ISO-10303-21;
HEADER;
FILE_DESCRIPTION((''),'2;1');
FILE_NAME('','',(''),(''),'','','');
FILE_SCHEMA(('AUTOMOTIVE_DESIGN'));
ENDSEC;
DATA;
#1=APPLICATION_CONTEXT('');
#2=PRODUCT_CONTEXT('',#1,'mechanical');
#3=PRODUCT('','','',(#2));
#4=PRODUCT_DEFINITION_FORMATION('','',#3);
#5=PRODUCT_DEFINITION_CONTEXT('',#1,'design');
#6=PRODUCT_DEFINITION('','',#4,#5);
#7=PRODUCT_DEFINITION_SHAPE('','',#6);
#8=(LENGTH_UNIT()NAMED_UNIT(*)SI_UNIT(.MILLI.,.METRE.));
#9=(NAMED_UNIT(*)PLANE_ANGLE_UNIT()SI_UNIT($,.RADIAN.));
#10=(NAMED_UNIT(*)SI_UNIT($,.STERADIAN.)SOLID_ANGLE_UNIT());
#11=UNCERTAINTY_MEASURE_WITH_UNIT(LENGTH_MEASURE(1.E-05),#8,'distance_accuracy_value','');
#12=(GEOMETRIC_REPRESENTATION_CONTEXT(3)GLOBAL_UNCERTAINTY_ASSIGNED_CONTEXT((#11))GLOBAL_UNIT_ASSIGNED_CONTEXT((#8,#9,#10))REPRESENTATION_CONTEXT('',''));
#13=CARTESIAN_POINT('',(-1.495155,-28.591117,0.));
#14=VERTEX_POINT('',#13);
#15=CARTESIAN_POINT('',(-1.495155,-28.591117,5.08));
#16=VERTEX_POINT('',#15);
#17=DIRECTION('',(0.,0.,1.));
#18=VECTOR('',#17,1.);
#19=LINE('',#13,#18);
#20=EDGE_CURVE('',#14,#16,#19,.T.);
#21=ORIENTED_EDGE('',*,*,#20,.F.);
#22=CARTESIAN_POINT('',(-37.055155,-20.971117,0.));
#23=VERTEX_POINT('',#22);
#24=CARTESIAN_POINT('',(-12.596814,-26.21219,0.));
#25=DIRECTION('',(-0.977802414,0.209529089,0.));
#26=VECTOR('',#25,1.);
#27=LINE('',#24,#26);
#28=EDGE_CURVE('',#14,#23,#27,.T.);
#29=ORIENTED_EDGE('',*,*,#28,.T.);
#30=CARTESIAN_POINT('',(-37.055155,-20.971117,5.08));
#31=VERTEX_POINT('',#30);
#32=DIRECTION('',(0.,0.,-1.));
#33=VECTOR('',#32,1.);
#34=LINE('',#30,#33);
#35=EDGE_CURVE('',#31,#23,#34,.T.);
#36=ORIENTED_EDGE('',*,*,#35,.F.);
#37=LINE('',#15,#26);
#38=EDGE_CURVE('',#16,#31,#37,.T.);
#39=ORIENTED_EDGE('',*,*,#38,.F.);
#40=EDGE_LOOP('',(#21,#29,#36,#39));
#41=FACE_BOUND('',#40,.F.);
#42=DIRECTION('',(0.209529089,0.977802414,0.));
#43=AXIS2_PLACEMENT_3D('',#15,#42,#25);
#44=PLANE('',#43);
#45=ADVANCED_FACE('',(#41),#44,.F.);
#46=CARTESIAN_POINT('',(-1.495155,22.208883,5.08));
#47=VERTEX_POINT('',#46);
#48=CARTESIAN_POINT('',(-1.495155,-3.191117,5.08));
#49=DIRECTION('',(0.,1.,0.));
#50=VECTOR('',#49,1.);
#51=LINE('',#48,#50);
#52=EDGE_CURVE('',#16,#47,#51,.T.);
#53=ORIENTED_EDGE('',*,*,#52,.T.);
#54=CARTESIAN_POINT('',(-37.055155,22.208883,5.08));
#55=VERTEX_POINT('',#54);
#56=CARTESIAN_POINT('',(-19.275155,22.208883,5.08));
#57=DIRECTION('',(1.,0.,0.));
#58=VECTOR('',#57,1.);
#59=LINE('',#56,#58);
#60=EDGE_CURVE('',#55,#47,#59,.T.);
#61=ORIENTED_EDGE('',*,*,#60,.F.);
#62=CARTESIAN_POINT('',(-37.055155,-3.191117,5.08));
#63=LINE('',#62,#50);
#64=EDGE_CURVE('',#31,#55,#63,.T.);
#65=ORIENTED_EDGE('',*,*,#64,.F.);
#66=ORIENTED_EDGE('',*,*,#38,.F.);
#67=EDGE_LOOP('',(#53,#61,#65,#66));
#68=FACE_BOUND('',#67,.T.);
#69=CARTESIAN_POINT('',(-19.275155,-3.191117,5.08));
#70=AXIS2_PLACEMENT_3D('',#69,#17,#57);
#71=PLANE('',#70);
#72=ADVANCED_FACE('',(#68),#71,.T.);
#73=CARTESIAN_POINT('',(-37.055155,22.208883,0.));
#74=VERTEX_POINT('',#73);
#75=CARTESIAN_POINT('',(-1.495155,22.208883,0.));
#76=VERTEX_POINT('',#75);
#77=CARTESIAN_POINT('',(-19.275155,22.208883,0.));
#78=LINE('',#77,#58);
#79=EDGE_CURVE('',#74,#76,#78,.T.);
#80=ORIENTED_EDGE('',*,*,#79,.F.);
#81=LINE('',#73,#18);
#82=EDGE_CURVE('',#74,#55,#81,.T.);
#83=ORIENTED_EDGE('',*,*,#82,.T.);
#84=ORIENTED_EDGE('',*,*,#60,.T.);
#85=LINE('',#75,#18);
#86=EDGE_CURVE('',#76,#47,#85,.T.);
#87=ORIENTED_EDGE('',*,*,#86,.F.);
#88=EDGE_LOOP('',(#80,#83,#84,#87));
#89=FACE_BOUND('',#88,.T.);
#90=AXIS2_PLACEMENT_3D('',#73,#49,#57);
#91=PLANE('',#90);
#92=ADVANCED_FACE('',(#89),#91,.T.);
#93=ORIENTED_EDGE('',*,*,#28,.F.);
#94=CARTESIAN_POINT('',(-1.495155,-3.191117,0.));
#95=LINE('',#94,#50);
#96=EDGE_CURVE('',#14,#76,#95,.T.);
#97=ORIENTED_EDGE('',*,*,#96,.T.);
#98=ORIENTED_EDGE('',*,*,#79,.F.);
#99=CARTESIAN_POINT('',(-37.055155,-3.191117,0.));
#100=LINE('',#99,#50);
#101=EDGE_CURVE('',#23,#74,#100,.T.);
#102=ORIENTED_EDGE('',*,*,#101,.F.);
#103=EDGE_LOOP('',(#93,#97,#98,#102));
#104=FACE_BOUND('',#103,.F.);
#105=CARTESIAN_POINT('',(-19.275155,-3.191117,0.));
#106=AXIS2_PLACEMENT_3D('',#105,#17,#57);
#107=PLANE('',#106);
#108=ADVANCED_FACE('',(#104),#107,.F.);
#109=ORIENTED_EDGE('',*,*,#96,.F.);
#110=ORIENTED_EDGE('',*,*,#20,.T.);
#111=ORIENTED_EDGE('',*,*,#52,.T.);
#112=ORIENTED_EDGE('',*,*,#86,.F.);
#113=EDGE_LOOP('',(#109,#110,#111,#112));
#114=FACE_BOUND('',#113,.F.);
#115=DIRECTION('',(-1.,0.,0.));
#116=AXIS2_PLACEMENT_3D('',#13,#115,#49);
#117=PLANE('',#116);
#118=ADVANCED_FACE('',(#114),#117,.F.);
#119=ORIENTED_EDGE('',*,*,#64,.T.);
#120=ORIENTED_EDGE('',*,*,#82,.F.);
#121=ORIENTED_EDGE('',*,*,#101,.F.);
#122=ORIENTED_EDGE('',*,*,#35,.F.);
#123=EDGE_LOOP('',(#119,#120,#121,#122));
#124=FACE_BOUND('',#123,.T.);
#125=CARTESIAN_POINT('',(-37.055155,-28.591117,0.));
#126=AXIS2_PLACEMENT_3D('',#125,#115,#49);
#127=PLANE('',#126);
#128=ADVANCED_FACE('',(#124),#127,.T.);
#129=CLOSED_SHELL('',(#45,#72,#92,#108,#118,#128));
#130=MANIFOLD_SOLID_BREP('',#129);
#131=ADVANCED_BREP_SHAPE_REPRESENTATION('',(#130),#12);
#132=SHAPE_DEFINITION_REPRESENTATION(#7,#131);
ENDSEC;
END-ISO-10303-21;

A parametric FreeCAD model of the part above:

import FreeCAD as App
import Part
import Sketcher
Q = App.Units.Quantity

doc = App.newDocument("Part")
body = doc.addObject("PartDesign::Body", "Body")

sketch1 = doc.addObject("Sketcher::SketchObject", "Sketch")
body.addObject(sketch1)
sketch1.AttachmentSupport = (doc.XY_Plane, [""])
sketch1.MapMode = "FlatFace"
sketch1.addGeometry([
    Part.LineSegment(App.Vector(-37, 22, 0), App.Vector(-37, -29, 0)),
    Part.LineSegment(App.Vector(-37, -29, 0), App.Vector(-1, -29, 0)),
    Part.LineSegment(App.Vector(-1, -29, 0), App.Vector(-1, 22, 0)),
    Part.LineSegment(App.Vector(-1, 22, 0), App.Vector(-37, 22, 0)),
], False)
sketch1.addConstraint([
    Sketcher.Constraint("Coincident", 0, 2, 1, 1),
    Sketcher.Constraint("Coincident", 1, 2, 2, 1),
    Sketcher.Constraint("Coincident", 2, 2, 3, 1),
    Sketcher.Constraint("Coincident", 3, 2, 0, 1),
    Sketcher.Constraint("Vertical", 0),
    Sketcher.Constraint("Horizontal", 1),
    Sketcher.Constraint("Vertical", 2),
    Sketcher.Constraint("Horizontal", 3),
    Sketcher.Constraint("DistanceY", 0, 2, 0, 1, Q("2 in")),
    Sketcher.Constraint("DistanceX", 1, 1, 1, 2, Q("1.4 in")),
    Sketcher.Constraint("DistanceX", 0, 2, -1, 1, 37.055155),
    Sketcher.Constraint("DistanceY", 0, 2, -1, 1, 28.591117),
])
pad1 = doc.addObject("PartDesign::Pad", "Pad")
body.addObject(pad1)
pad1.Profile = sketch1
pad1.Length = Q("0.2 in")

sketch2 = doc.addObject("Sketcher::SketchObject", "Sketch001")
body.addObject(sketch2)
sketch2.AttachmentSupport = (doc.XY_Plane, [""])
sketch2.MapMode = "FlatFace"
sketch2.AttachmentOffset = App.Placement(App.Vector(0, 0, 0.2 * 25.4), App.Rotation())
sketch2.addGeometry([
    Part.LineSegment(App.Vector(-37, -29, 0), App.Vector(-1, -29, 0)),
    Part.LineSegment(App.Vector(-1, -29, 0), App.Vector(-37, -21, 0)),
    Part.LineSegment(App.Vector(-37, -21, 0), App.Vector(-37, -29, 0)),
], False)
sketch2.addConstraint([
    Sketcher.Constraint("Coincident", 0, 2, 1, 1),
    Sketcher.Constraint("Coincident", 1, 2, 2, 1),
    Sketcher.Constraint("Coincident", 2, 2, 0, 1),
    Sketcher.Constraint("Horizontal", 0),
    Sketcher.Constraint("Vertical", 2),
    Sketcher.Constraint("DistanceX", 0, 1, 0, 2, Q("1.4 in")),
    Sketcher.Constraint("DistanceY", 2, 2, 2, 1, Q("0.3 in")),
    Sketcher.Constraint("DistanceX", 0, 2, -1, 1, 1.495155),
    Sketcher.Constraint("DistanceY", 0, 2, -1, 1, 28.591117),
])
pocket1 = doc.addObject("PartDesign::Pocket", "Pocket")
body.addObject(pocket1)
pocket1.Profile = sketch2
pocket1.Length = Q("1 in")

doc.recompute()
